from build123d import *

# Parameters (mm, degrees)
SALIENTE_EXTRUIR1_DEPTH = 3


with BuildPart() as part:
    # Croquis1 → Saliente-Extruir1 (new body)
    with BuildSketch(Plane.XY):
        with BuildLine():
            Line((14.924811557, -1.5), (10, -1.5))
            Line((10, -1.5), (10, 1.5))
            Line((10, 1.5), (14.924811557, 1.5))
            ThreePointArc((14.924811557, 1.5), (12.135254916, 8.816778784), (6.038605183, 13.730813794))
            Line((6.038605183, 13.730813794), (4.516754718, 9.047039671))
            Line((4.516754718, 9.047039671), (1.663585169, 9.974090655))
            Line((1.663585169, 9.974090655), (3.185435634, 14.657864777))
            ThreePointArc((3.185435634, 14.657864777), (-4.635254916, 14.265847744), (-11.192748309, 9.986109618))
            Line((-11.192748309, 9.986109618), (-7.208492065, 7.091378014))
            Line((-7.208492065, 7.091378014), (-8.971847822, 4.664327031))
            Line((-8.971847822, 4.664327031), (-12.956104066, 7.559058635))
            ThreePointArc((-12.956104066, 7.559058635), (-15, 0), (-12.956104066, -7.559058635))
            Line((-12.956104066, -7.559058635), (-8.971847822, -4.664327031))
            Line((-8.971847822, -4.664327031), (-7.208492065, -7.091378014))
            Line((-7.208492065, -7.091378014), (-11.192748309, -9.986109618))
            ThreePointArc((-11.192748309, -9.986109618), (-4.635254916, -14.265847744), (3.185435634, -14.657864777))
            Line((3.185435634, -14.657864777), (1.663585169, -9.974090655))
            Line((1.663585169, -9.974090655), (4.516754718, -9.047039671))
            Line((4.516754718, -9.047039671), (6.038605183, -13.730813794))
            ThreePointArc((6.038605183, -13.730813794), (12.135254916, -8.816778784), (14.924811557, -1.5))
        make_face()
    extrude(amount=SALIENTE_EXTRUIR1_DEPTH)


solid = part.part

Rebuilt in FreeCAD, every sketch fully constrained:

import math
import FreeCAD as App
import Part
import Sketcher

V = App.Vector
Q = App.Units.Quantity

doc = App.newDocument("Part")
body = doc.addObject("PartDesign::Body", "Body")

sketch1 = doc.addObject("Sketcher::SketchObject", "Sketch")
body.addObject(sketch1)
sketch1.AttachmentSupport = (doc.XY_Plane, [""])
sketch1.MapMode = "FlatFace"
sketch1.addGeometry([
    Part.LineSegment(V(14.924812, -1.5, 0), V(10, -1.5, 0)),
    Part.LineSegment(V(10, -1.5, 0), V(10, 1.5, 0)),
    Part.LineSegment(V(10, 1.5, 0), V(14.924812, 1.5, 0)),
    Part.ArcOfCircle(Part.Circle(V(0, 0, 0), V(0, 0, 1), 15), math.radians(5.73917), math.radians(66.26083)),
    Part.LineSegment(V(6.038605, 13.730814, 0), V(4.516755, 9.04704, 0)),
    Part.LineSegment(V(4.516755, 9.04704, 0), V(1.663585, 9.974091, 0)),
    Part.LineSegment(V(1.663585, 9.974091, 0), V(3.185436, 14.657865, 0)),
    Part.ArcOfCircle(Part.Circle(V(0, 0, 0), V(0, 0, 1), 15), math.radians(77.73917), math.radians(138.26083)),
    Part.LineSegment(V(-11.192748, 9.98611, 0), V(-7.208492, 7.091378, 0)),
    Part.LineSegment(V(-7.208492, 7.091378, 0), V(-8.971848, 4.664327, 0)),
    Part.LineSegment(V(-8.971848, 4.664327, 0), V(-12.956104, 7.559059, 0)),
    Part.ArcOfCircle(Part.Circle(V(0, 0, 0), V(0, 0, 1), 15), math.radians(149.73917), math.radians(210.26083)),
    Part.LineSegment(V(-12.956104, -7.559059, 0), V(-8.971848, -4.664327, 0)),
    Part.LineSegment(V(-8.971848, -4.664327, 0), V(-7.208492, -7.091378, 0)),
    Part.LineSegment(V(-7.208492, -7.091378, 0), V(-11.192748, -9.98611, 0)),
    Part.ArcOfCircle(Part.Circle(V(0, 0, 0), V(0, 0, 1), 15), math.radians(-138.26083), math.radians(-77.73917)),
    Part.LineSegment(V(3.185436, -14.657865, 0), V(1.663585, -9.974091, 0)),
    Part.LineSegment(V(1.663585, -9.974091, 0), V(4.516755, -9.04704, 0)),
    Part.LineSegment(V(4.516755, -9.04704, 0), V(6.038605, -13.730814, 0)),
    Part.ArcOfCircle(Part.Circle(V(0, 0, 0), V(0, 0, 1), 15), math.radians(-66.26083), math.radians(-5.73917)),
], False)
sketch1.addConstraint([
    Sketcher.Constraint("Coincident", 0, 2, 1, 1),
    Sketcher.Constraint("Coincident", 1, 2, 2, 1),
    Sketcher.Constraint("Coincident", 2, 2, 3, 1),
    Sketcher.Constraint("Coincident", 3, 2, 4, 1),
    Sketcher.Constraint("Coincident", 4, 2, 5, 1),
    Sketcher.Constraint("Coincident", 5, 2, 6, 1),
    Sketcher.Constraint("Coincident", 6, 2, 7, 1),
    Sketcher.Constraint("Coincident", 7, 2, 8, 1),
    Sketcher.Constraint("Coincident", 8, 2, 9, 1),
    Sketcher.Constraint("Coincident", 9, 2, 10, 1),
    Sketcher.Constraint("Coincident", 10, 2, 11, 1),
    Sketcher.Constraint("Coincident", 11, 2, 12, 1),
    Sketcher.Constraint("Coincident", 12, 2, 13, 1),
    Sketcher.Constraint("Coincident", 13, 2, 14, 1),
    Sketcher.Constraint("Coincident", 14, 2, 15, 1),
    Sketcher.Constraint("Coincident", 15, 2, 16, 1),
    Sketcher.Constraint("Coincident", 16, 2, 17, 1),
    Sketcher.Constraint("Coincident", 17, 2, 18, 1),
    Sketcher.Constraint("Coincident", 18, 2, 19, 1),
    Sketcher.Constraint("Coincident", 19, 2, 0, 1),
    Sketcher.Constraint("Horizontal", 0),
    Sketcher.Constraint("Vertical", 1),
    Sketcher.Constraint("Horizontal", 2),
    Sketcher.Constraint("Coincident", 3, 3, -1, 1),
    Sketcher.Constraint("Coincident", 7, 3, -1, 1),
    Sketcher.Constraint("Coincident", 11, 3, -1, 1),
    Sketcher.Constraint("Coincident", 15, 3, -1, 1),
    Sketcher.Constraint("Coincident", 19, 3, -1, 1),
    Sketcher.Constraint("Equal", 3, 7),
    Sketcher.Constraint("Equal", 7, 11),
    Sketcher.Constraint("Equal", 11, 15),
    Sketcher.Constraint("Equal", 15, 19),
    Sketcher.Constraint("Symmetric", 9, 2, 12, 2, -1),
    Sketcher.Constraint("Symmetric", 8, 2, 13, 2, -1),
    Sketcher.Constraint("Symmetric", 5, 2, 16, 2, -1),
    Sketcher.Constraint("Symmetric", 4, 2, 17, 2, -1),
    Sketcher.Constraint("Perpendicular", 4, 5),
    Sketcher.Constraint("Perpendicular", 5, 6),
    Sketcher.Constraint("Perpendicular", 8, 9),
    Sketcher.Constraint("Perpendicular", 9, 10),
    Sketcher.Constraint("Perpendicular", 12, 13),
    Sketcher.Constraint("Perpendicular", 13, 14),
    Sketcher.Constraint("Perpendicular", 16, 17),
    Sketcher.Constraint("Perpendicular", 17, 18),
    Sketcher.Constraint("Vertical", 2, 2, 19, 2),
    Sketcher.Constraint("Equal", 4, 6),
    Sketcher.Constraint("Equal", 6, 8),
    Sketcher.Constraint("Equal", 5, 9),
    Sketcher.Constraint("Equal", 8, 10),
    Sketcher.Constraint("Radius", 3, 15.0),
    Sketcher.Constraint("DistanceY", 1, 1, 1, 2, 3.0),
    Sketcher.Constraint("Angle", 4, Q("-108 deg")),
    Sketcher.Constraint("Angle", 8, Q("-36 deg")),
    Sketcher.Constraint("Distance", 5, 3.0),
    Sketcher.Constraint("DistanceX", -1, 1, 0, 2, 10.0),
    Sketcher.Constraint("DistanceX", 7, 2, 9, 2, 2.2209),
])
pad1 = doc.addObject("PartDesign::Pad", "Pad")
body.addObject(pad1)
pad1.Profile = sketch1
pad1.Length = 3

doc.recompute()
